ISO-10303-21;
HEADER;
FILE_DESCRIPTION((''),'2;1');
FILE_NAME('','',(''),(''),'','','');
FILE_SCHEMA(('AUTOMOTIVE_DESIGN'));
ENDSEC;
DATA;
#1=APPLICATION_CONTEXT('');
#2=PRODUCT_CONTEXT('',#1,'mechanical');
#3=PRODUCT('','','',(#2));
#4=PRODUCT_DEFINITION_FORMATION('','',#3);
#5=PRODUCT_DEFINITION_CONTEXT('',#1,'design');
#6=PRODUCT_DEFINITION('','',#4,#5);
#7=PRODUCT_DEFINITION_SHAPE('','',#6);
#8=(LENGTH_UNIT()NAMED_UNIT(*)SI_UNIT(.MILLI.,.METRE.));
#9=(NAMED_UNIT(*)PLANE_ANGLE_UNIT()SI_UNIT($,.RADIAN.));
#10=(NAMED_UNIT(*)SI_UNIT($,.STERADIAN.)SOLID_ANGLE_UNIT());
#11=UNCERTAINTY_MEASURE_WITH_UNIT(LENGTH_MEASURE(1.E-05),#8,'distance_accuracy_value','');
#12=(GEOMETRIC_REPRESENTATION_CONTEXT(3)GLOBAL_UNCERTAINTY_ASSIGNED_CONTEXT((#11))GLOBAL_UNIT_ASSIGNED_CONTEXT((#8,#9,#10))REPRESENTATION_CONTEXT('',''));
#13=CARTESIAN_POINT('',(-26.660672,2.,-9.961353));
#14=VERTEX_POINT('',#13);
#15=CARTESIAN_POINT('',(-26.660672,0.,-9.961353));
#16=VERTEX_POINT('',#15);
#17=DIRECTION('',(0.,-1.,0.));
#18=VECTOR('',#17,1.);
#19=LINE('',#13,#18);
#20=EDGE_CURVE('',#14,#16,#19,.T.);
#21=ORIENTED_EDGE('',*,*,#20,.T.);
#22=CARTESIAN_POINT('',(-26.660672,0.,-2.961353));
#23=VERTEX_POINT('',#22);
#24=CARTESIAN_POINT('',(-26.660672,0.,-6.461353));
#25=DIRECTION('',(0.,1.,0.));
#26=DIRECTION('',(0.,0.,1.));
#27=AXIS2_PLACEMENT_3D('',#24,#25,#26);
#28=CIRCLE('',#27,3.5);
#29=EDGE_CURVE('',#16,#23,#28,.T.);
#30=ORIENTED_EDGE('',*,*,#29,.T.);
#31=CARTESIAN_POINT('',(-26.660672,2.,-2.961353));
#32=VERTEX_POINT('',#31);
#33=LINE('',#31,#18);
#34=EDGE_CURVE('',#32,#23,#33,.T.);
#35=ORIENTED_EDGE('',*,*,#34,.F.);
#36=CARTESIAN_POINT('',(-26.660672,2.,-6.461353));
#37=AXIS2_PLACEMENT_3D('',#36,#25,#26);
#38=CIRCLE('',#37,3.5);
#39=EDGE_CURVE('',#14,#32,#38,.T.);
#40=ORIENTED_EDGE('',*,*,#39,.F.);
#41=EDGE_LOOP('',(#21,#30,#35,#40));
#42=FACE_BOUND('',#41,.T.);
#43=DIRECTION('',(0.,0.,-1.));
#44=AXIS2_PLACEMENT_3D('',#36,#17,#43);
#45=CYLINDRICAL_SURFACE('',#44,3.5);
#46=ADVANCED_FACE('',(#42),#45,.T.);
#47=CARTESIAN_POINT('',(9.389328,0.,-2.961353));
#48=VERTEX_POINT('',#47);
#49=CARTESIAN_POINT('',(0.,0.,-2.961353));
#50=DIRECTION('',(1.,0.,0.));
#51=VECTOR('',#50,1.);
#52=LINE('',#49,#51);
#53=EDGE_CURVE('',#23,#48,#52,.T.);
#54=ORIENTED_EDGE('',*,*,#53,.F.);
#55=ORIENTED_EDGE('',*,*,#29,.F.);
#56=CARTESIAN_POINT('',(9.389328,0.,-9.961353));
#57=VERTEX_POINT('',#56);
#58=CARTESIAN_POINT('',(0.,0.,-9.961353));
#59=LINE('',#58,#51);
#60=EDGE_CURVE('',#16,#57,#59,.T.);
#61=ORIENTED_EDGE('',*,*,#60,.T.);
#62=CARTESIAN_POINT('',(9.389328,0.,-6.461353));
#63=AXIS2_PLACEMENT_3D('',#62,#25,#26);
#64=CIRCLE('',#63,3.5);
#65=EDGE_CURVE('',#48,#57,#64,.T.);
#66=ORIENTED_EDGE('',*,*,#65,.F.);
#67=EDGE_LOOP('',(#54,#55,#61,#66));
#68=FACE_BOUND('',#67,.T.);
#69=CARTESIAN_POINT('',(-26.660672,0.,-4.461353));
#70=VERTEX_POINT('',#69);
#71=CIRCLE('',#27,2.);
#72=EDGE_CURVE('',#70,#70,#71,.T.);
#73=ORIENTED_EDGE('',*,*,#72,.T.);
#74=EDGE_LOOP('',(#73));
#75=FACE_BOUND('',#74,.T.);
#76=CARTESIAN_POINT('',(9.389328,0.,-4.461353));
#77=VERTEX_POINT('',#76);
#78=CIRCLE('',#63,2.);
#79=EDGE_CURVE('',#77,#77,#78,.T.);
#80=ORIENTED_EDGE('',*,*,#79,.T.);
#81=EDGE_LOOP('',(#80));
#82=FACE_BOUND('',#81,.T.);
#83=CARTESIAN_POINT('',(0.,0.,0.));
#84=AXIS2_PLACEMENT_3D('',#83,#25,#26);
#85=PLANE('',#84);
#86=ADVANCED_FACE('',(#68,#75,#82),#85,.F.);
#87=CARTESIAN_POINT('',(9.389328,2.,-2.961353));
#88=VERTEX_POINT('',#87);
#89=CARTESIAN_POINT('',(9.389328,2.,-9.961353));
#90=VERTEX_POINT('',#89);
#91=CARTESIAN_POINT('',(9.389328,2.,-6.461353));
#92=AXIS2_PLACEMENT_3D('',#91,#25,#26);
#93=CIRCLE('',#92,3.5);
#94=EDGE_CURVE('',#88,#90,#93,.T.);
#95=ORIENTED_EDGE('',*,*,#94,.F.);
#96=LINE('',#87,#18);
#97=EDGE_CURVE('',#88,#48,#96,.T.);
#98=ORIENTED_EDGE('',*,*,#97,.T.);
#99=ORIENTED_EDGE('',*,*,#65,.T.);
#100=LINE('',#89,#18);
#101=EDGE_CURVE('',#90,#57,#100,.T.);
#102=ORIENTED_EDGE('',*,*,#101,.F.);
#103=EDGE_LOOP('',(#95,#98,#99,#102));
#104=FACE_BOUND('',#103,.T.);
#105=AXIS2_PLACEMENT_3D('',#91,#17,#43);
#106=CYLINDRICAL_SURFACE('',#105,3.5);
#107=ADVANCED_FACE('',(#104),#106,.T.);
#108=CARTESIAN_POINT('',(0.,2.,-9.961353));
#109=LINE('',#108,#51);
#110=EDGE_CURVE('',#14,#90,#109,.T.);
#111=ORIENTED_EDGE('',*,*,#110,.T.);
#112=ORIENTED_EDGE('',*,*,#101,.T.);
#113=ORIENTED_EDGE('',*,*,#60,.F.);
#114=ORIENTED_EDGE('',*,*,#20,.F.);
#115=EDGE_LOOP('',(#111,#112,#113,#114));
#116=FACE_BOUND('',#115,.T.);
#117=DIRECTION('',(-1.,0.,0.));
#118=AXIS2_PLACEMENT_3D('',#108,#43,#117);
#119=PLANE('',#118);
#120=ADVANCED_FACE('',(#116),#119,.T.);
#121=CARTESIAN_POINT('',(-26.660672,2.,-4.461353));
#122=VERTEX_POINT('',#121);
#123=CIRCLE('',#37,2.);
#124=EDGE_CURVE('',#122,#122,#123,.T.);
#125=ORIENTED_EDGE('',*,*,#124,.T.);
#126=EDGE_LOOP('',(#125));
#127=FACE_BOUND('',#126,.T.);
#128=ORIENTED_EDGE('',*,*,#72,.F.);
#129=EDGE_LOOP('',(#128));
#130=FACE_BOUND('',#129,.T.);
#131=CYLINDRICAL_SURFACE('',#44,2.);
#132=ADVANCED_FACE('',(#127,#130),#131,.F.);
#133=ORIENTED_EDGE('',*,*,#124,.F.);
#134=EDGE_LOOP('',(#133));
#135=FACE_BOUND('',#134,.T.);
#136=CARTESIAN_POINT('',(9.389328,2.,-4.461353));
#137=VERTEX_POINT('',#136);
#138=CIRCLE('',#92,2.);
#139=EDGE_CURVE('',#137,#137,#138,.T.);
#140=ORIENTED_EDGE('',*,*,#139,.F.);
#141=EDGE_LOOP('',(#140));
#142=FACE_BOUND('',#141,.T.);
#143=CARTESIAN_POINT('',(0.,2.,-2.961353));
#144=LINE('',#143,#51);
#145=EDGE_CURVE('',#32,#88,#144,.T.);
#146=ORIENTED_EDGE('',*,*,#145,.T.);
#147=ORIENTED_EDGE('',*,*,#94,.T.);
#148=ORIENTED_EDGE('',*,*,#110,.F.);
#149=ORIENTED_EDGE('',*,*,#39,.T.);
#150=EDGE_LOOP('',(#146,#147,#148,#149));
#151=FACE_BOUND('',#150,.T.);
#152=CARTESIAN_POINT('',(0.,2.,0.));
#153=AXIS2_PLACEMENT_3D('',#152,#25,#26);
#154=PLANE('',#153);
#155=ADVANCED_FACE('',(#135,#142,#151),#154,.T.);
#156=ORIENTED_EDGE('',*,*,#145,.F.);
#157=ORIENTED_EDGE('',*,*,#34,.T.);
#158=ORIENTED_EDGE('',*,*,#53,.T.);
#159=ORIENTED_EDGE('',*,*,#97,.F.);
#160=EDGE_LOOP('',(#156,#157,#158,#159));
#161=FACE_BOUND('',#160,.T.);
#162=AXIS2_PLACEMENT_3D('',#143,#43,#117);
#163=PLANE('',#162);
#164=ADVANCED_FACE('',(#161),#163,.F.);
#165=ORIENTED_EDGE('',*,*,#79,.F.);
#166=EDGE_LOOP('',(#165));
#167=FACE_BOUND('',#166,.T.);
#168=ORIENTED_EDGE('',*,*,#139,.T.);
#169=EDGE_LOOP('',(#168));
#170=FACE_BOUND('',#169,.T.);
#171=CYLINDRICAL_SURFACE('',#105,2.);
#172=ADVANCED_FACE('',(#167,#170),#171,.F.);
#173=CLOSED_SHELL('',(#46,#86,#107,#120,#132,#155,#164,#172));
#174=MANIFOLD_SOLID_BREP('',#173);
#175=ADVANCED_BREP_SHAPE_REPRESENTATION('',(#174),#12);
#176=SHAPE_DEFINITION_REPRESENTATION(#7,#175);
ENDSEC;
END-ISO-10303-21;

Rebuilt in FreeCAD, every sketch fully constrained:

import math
import FreeCAD as App
import Part
import Sketcher

V = App.Vector
Q = App.Units.Quantity

doc = App.newDocument("Part")
body = doc.addObject("PartDesign::Body", "Body")

# Sketch on XZ plane
sketch1 = body.newObject("Sketcher::SketchObject", "Sketch")
sketch1.AttachmentSupport = (doc.getObject("XZ_Plane"), [""])
sketch1.MapMode = "FlatFace"
sketch1.addGeometry(Part.LineSegment(V(9.389328, -9.961353, 0), V(-26.660672, -9.961353, 0)), False)
sketch1.addGeometry(Part.ArcOfCircle(Part.Circle(V(-26.660672, -6.461353, 0), V(0, 0, 1), 3.5), math.radians(90), math.radians(270)), False)
sketch1.addGeometry(Part.LineSegment(V(-26.660672, -2.961353, 0), V(9.389328, -2.961353, 0)), False)
sketch1.addGeometry(Part.ArcOfCircle(Part.Circle(V(9.389328, -6.461353, 0), V(0, 0, 1), 3.5), math.radians(-90), math.radians(90)), False)
sketch1.addGeometry(Part.Circle(V(9.389328, -6.461353, 0), V(0, 0, 1), 2), False)
sketch1.addGeometry(Part.Circle(V(-26.660672, -6.461353, 0), V(0, 0, 1), 2), False)
sketch1.addConstraint(Sketcher.Constraint("Tangent", 0, 2, 1, 2))
sketch1.addConstraint(Sketcher.Constraint("Tangent", 1, 1, 2, 1))
sketch1.addConstraint(Sketcher.Constraint("Tangent", 2, 2, 3, 2))
sketch1.addConstraint(Sketcher.Constraint("Tangent", 3, 1, 0, 1))
sketch1.addConstraint(Sketcher.Constraint("Horizontal", 0))
sketch1.addConstraint(Sketcher.Constraint("Horizontal", 2))
sketch1.addConstraint(Sketcher.Constraint("Coincident", 4, 3, 3, 3))
sketch1.addConstraint(Sketcher.Constraint("Coincident", 5, 3, 1, 3))
sketch1.addConstraint(Sketcher.Constraint("Equal", 4, 5))
sketch1.addConstraint(Sketcher.Constraint("Diameter", 4, Q("4 mm")))
sketch1.addConstraint(Sketcher.Constraint("Radius", 1, Q("3.5 mm")))
sketch1.addConstraint(Sketcher.Constraint("DistanceX", 0, 2, 0, 1, Q("36.05 mm")))
sketch1.addConstraint(Sketcher.Constraint("DistanceX", 1, 3, -1, 1, Q("26.660672 mm")))
sketch1.addConstraint(Sketcher.Constraint("DistanceY", 1, 3, -1, 1, Q("6.461353 mm")))
pad1 = body.newObject("PartDesign::Pad", "Pad")
pad1.Profile = sketch1
pad1.Length = 2
pad1.Reversed = True

doc.recompute()
